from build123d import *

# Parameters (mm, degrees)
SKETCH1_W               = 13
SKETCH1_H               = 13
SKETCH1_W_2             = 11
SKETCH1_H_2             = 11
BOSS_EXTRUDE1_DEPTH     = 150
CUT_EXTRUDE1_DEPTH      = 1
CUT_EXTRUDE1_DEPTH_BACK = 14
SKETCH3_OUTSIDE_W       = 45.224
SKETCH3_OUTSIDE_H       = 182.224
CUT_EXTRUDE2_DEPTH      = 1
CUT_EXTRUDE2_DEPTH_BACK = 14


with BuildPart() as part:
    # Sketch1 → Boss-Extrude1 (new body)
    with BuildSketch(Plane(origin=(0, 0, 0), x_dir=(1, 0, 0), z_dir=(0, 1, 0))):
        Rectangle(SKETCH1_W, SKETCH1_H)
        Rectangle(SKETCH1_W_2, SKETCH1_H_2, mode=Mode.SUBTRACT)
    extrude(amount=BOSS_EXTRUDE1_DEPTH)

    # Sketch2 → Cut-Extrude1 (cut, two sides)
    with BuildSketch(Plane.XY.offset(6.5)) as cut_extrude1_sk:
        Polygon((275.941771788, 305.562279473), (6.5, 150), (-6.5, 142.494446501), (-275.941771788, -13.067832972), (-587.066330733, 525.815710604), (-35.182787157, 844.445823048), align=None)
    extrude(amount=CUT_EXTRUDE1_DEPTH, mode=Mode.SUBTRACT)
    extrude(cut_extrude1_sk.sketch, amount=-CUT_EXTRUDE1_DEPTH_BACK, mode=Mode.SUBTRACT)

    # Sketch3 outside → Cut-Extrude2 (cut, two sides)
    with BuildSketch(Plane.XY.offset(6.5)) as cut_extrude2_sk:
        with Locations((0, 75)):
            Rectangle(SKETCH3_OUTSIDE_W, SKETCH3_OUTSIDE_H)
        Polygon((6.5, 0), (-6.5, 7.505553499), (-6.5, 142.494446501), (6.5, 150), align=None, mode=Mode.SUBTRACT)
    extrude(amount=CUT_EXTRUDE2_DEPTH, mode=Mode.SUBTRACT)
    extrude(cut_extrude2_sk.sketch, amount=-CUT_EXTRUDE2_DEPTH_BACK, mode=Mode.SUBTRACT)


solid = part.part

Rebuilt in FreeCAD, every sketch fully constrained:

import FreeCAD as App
import Part
import Sketcher
Q = App.Units.Quantity


def add_polygon(sketch, points):
    """Adds a closed chain of lines whose ends are joined by coincident constraints."""
    first, n = sketch.GeometryCount, len(points)
    for a, b in zip(points, points[1:] + points[:1]):
        sketch.addGeometry(Part.LineSegment(App.Vector(*a, 0), App.Vector(*b, 0)), False)
    for i in range(n):
        sketch.addConstraint(Sketcher.Constraint("Coincident", first + i, 2, first + (i + 1) % n, 1))

doc = App.newDocument("Part")
body = doc.addObject("PartDesign::Body", "Body")

sketch1 = body.newObject("Sketcher::SketchObject", "Sketch")
sketch1.AttachmentSupport = (doc.getObject("XZ_Plane"), [""])
sketch1.MapMode = "FlatFace"
add_polygon(sketch1, [(-6.5, -6.5), (-6.5, 6.5), (6.5, 6.5), (6.5, -6.5)])
add_polygon(sketch1, [(5.5, 5.5), (-5.5, 5.5), (-5.5, -5.5), (5.5, -5.5)])
sketch1.addConstraint(Sketcher.Constraint("Vertical", 0))
sketch1.addConstraint(Sketcher.Constraint("Horizontal", 1))
sketch1.addConstraint(Sketcher.Constraint("Vertical", 2))
sketch1.addConstraint(Sketcher.Constraint("Horizontal", 3))
sketch1.addConstraint(Sketcher.Constraint("Horizontal", 4))
sketch1.addConstraint(Sketcher.Constraint("Vertical", 5))
sketch1.addConstraint(Sketcher.Constraint("Horizontal", 6))
sketch1.addConstraint(Sketcher.Constraint("Vertical", 7))
sketch1.addConstraint(Sketcher.Constraint("Symmetric", 0, 2, 2, 2, -1, 1))
sketch1.addConstraint(Sketcher.Constraint("Symmetric", 4, 2, 6, 2, -1, 1))
sketch1.addConstraint(Sketcher.Constraint("Equal", 3, 0))
sketch1.addConstraint(Sketcher.Constraint("Equal", 6, 5))
sketch1.addConstraint(Sketcher.Constraint("DistanceX", 1, 1, 1, 2, 13.0))
sketch1.addConstraint(Sketcher.Constraint("DistanceX", 4, 2, 4, 1, 11.0))
pad1 = body.newObject("PartDesign::Pad", "Pad")
pad1.Profile = sketch1
pad1.Length = 150
pad1.Reversed = True

sketch2 = body.newObject("Sketcher::SketchObject", "Sketch001")
sketch2.AttachmentSupport = (doc.getObject("XY_Plane"), [""])
sketch2.MapMode = "FlatFace"
sketch2.AttachmentOffset = App.Placement(App.Vector(0, 0, 6.5), App.Rotation())
add_polygon(sketch2, [(6.5, 150), (275.941772, 305.562279), (-35.182787, 844.445823), (-587.066331, 525.815711), (-275.941772, -13.067833), (-6.5, 142.494447)])
sketch2.addConstraint(Sketcher.Constraint("Perpendicular", 0, 1))
sketch2.addConstraint(Sketcher.Constraint("Perpendicular", 1, 2))
sketch2.addConstraint(Sketcher.Constraint("Perpendicular", 2, 3))
sketch2.addConstraint(Sketcher.Constraint("Perpendicular", 3, 4))
sketch2.addConstraint(Sketcher.Constraint("Parallel", 4, 5))
sketch2.addConstraint(Sketcher.Constraint("Equal", 0, 4))
sketch2.addConstraint(Sketcher.Constraint("Angle", 0, Q("30 deg")))
sketch2.addConstraint(Sketcher.Constraint("DistanceY", -1, 1, 5, 2, 150.0))
sketch2.addConstraint(Sketcher.Constraint("DistanceX", 4, 2, 5, 2, 13.0))
sketch2.addConstraint(Sketcher.Constraint("DistanceX", 4, 2, -1, 1, 6.5))
sketch2.addConstraint(Sketcher.Constraint("Distance", 0, 311.124559))
sketch2.addConstraint(Sketcher.Constraint("DistanceX", 2, 2, -1, 1, 587.066331))
pocket1 = body.newObject("PartDesign::Pocket", "Pocket")
pocket1.Profile = sketch2
pocket1.Type = "ThroughAll"
pocket1.Midplane = True

sketch3 = body.newObject("Sketcher::SketchObject", "Sketch002")
sketch3.AttachmentSupport = (doc.getObject("XY_Plane"), [""])
sketch3.MapMode = "FlatFace"
sketch3.AttachmentOffset = App.Placement(App.Vector(0, 0, 6.5), App.Rotation())
add_polygon(sketch3, [(-22.612, 166.112), (-22.612, -16.112), (22.612, -16.112), (22.612, 166.112)])
add_polygon(sketch3, [(6.5, 150), (6.5, 0), (-6.5, 7.505553), (-6.5, 142.494447)])
sketch3.addConstraint(Sketcher.Constraint("Vertical", 0))
sketch3.addConstraint(Sketcher.Constraint("Horizontal", 1))
sketch3.addConstraint(Sketcher.Constraint("Vertical", 2))
sketch3.addConstraint(Sketcher.Constraint("Horizontal", 3))
sketch3.addConstraint(Sketcher.Constraint("Vertical", 4))
sketch3.addConstraint(Sketcher.Constraint("Vertical", 6))
sketch3.addConstraint(Sketcher.Constraint("PointOnObject", 4, 2, -1))
sketch3.addConstraint(Sketcher.Constraint("Equal", 5, 7))
sketch3.addConstraint(Sketcher.Constraint("DistanceY", 4, 2, 4, 1, 150.0))
sketch3.addConstraint(Sketcher.Constraint("Angle", 5, Q("150 deg")))
sketch3.addConstraint(Sketcher.Constraint("DistanceX", 5, 2, 4, 2, 13.0))
sketch3.addConstraint(Sketcher.Constraint("DistanceX", -1, 1, 4, 2, 6.5))
sketch3.addConstraint(Sketcher.Constraint("DistanceX", 1, 1, 1, 2, 45.224))
sketch3.addConstraint(Sketcher.Constraint("DistanceY", 0, 2, 0, 1, 182.224))
sketch3.addConstraint(Sketcher.Constraint("DistanceX", 0, 2, -1, 1, 22.612))
sketch3.addConstraint(Sketcher.Constraint("DistanceY", 0, 2, -1, 1, 16.112))
pocket2 = body.newObject("PartDesign::Pocket", "Pocket001")
pocket2.Profile = sketch3
pocket2.Type = "ThroughAll"
pocket2.Midplane = True

doc.recompute()
